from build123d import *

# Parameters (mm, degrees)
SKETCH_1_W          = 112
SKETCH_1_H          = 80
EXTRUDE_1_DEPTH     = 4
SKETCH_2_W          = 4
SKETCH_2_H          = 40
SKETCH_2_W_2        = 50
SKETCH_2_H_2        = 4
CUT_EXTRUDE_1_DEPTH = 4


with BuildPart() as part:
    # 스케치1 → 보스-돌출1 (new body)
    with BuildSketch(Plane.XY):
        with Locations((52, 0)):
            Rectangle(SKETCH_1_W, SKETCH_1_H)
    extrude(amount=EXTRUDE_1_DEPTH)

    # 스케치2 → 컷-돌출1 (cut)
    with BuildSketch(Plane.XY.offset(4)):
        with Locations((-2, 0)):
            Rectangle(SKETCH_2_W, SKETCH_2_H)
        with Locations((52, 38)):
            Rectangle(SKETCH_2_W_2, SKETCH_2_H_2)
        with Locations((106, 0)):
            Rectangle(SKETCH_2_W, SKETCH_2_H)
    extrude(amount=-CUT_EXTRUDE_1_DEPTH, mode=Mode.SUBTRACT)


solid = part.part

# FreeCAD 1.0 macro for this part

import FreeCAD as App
import Part
import Sketcher

V = App.Vector
Q = App.Units.Quantity


def add_polygon(sketch, points):
    """Adds a closed chain of lines whose ends are joined by coincident constraints."""
    first, n = sketch.GeometryCount, len(points)
    for a, b in zip(points, points[1:] + points[:1]):
        sketch.addGeometry(Part.LineSegment(App.Vector(*a, 0), App.Vector(*b, 0)), False)
    for i in range(n):
        sketch.addConstraint(Sketcher.Constraint("Coincident", first + i, 2, first + (i + 1) % n, 1))

doc = App.newDocument("Part")
params = doc.addObject("Spreadsheet::Sheet", "Params")
for row, (alias, value) in enumerate([
    ("sketch1_width", "112 mm"),
    ("sketch1_height", "80 mm"),
    ("pad1_length", "4 mm"),
    ("sketch2_width", "4 mm"),
    ("sketch2_width2", "50 mm"),
    ("sketch2_height", "40 mm"),
    ("pocket1_length", "4 mm"),
], start=1):
    params.set(f"A{row}", alias)
    params.set(f"B{row}", "=" + value)
    params.setAlias(f"B{row}", alias)

body = doc.addObject("PartDesign::Body", "Body")

# Sketch on XY plane
sketch1 = body.newObject("Sketcher::SketchObject", "Sketch")
sketch1.AttachmentSupport = (doc.getObject("XY_Plane"), [""])
sketch1.MapMode = "FlatFace"
add_polygon(sketch1, [(-4, 40), (-4, -40), (108, -40), (108, 40)])  # lines 0-3
sketch1.addConstraint([
    Sketcher.Constraint("Vertical", 0),
    Sketcher.Constraint("Horizontal", 1),
    Sketcher.Constraint("Vertical", 2),
    Sketcher.Constraint("Horizontal", 3),
    Sketcher.Constraint("DistanceX", 1, 1, 1, 2, Q("112 mm")),
    Sketcher.Constraint("DistanceY", 0, 2, 0, 1, Q("80 mm")),
    Sketcher.Constraint("DistanceX", 0, 2, -1, 1, Q("4 mm")),
    Sketcher.Constraint("DistanceY", 0, 2, -1, 1, Q("40 mm")),
])
sketch1.setExpression("Constraints[8]", "Params.sketch1_width")
sketch1.setExpression("Constraints[9]", "Params.sketch1_height")
pad1 = body.newObject("PartDesign::Pad", "Pad")
pad1.Profile = sketch1
pad1.setExpression("Length", "Params.pad1_length")

# Sketch on XY plane
sketch2 = body.newObject("Sketcher::SketchObject", "Sketch001")
sketch2.AttachmentSupport = (doc.getObject("XY_Plane"), [""])
sketch2.MapMode = "FlatFace"
sketch2.AttachmentOffset = App.Placement(V(0, 0, 4), App.Rotation())
add_polygon(sketch2, [(-4, 20), (-4, -20), (0, -20), (0, 20)])  # lines 0-3
add_polygon(sketch2, [(27, 40), (27, 36), (77, 36), (77, 40)])  # lines 4-7
add_polygon(sketch2, [(104, 20), (104, -20), (108, -20), (108, 20)])  # lines 8-11
sketch2.addConstraint([
    Sketcher.Constraint("Vertical", 0),
    Sketcher.Constraint("Horizontal", 1),
    Sketcher.Constraint("Vertical", 2),
    Sketcher.Constraint("Horizontal", 3),
    Sketcher.Constraint("Vertical", 4),
    Sketcher.Constraint("Horizontal", 5),
    Sketcher.Constraint("Vertical", 6),
    Sketcher.Constraint("Horizontal", 7),
    Sketcher.Constraint("Vertical", 8),
    Sketcher.Constraint("Horizontal", 9),
    Sketcher.Constraint("Vertical", 10),
    Sketcher.Constraint("Horizontal", 11),
    Sketcher.Constraint("Symmetric", 1, 2, 2, 2, -1, 1),
    Sketcher.Constraint("Horizontal", 1, 2, 8, 2),
    Sketcher.Constraint("Horizontal", 3, 2, 10, 2),
    Sketcher.Constraint("Equal", 3, 9),
    Sketcher.Constraint("Equal", 11, 4),
    Sketcher.Constraint("DistanceX", 1, 1, 1, 2, Q("4 mm")),
    Sketcher.Constraint("DistanceX", 5, 1, 5, 2, Q("50 mm")),
    Sketcher.Constraint("DistanceY", 0, 2, 0, 1, Q("40 mm")),
    Sketcher.Constraint("DistanceX", -1, 1, 4, 2, Q("27 mm")),
    Sketcher.Constraint("DistanceY", -1, 1, 4, 2, Q("36 mm")),
    Sketcher.Constraint("DistanceX", -1, 1, 8, 2, Q("104 mm")),
])
sketch2.setExpression("Constraints[29]", "Params.sketch2_width")
sketch2.setExpression("Constraints[30]", "Params.sketch2_width2")
sketch2.setExpression("Constraints[31]", "Params.sketch2_height")
pocket1 = body.newObject("PartDesign::Pocket", "Pocket")
pocket1.Profile = sketch2
pocket1.setExpression("Length", "Params.pocket1_length")

doc.recompute()
